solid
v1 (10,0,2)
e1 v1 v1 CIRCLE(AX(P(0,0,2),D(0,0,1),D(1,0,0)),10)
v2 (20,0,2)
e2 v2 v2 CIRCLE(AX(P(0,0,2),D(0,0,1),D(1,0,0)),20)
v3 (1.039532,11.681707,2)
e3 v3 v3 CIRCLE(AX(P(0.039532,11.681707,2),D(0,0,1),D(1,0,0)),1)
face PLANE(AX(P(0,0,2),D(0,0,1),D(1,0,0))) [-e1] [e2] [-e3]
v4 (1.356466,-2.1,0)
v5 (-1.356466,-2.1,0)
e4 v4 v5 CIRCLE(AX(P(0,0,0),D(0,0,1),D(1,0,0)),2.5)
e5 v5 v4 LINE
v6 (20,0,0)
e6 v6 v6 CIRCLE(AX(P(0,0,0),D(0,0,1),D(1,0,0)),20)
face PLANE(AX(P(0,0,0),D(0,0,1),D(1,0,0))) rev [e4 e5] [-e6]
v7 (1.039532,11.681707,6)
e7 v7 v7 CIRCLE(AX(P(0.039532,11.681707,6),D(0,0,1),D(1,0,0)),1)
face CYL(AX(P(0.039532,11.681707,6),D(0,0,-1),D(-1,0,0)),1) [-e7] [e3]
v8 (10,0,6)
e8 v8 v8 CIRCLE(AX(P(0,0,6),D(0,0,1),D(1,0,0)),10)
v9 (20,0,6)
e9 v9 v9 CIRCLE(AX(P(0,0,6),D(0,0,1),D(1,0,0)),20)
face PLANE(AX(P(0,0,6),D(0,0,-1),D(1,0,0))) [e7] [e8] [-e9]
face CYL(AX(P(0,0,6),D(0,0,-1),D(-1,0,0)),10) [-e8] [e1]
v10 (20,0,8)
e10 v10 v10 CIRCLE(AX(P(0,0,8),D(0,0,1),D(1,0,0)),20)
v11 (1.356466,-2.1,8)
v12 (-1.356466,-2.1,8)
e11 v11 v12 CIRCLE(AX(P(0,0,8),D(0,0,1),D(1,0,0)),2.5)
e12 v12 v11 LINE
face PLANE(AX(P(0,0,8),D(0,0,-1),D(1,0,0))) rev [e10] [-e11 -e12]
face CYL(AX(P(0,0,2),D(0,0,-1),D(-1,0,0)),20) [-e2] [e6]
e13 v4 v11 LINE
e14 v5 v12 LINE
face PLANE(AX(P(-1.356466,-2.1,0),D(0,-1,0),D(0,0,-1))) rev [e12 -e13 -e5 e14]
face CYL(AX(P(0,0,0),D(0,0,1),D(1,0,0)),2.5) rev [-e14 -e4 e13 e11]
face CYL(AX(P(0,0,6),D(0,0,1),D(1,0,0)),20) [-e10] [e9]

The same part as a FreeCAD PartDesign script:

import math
import FreeCAD as App
import Part
import Sketcher
from FreeCAD import Vector

doc = App.newDocument("Part")
body = doc.addObject("PartDesign::Body", "Body")

sketch1 = doc.addObject("Sketcher::SketchObject", "Sketch")
body.addObject(sketch1)
sketch1.AttachmentSupport = (doc.XY_Plane, [""])
sketch1.MapMode = "FlatFace"
sketch1.addGeometry(Part.Circle(Vector(0, 0, 0), Vector(0, 0, 1), 20), False)
sketch1.addConstraint([
    Sketcher.Constraint("Coincident", 0, 3, -1, 1),
    Sketcher.Constraint("Diameter", 0, 40.0),
])
pad1 = doc.addObject("PartDesign::Pad", "Pad")
body.addObject(pad1)
pad1.Profile = sketch1
pad1.Length = 2

sketch2 = doc.addObject("Sketcher::SketchObject", "Sketch001")
body.addObject(sketch2)
sketch2.AttachmentSupport = (doc.XY_Plane, [""])
sketch2.MapMode = "FlatFace"
sketch2.AttachmentOffset = App.Placement(Vector(0, 0, 2), App.Rotation())
sketch2.addGeometry(Part.Circle(Vector(0, 0, 0), Vector(0, 0, 1), 10), False)
sketch2.addConstraint([
    Sketcher.Constraint("Coincident", 0, 3, -1, 1),
    Sketcher.Constraint("Diameter", 0, 20.0),
])
pad2 = doc.addObject("PartDesign::Pad", "Pad001")
body.addObject(pad2)
pad2.Profile = sketch2
pad2.Length = 4

sketch3 = doc.addObject("Sketcher::SketchObject", "Sketch002")
body.addObject(sketch3)
sketch3.AttachmentSupport = (doc.XY_Plane, [""])
sketch3.MapMode = "FlatFace"
sketch3.AttachmentOffset = App.Placement(Vector(0, 0, 2), App.Rotation())
sketch3.addGeometry(Part.Circle(Vector(0, 11.7, 0), Vector(0, 0, 1), 1), False)
sketch3.addConstraint([
    Sketcher.Constraint("Diameter", 0, 2.0),
    Sketcher.Constraint("DistanceX", -1, 1, 0, 3, 0.039532),
    Sketcher.Constraint("DistanceY", -1, 1, 0, 3, 11.681707),
])
pad3 = doc.addObject("PartDesign::Pad", "Pad002")
body.addObject(pad3)
pad3.Profile = sketch3
pad3.Length = 4
doc.recompute()

datumplane = doc.addObject("PartDesign::Plane", "DatumPlane")
body.addObject(datumplane)
datumplane.AttachmentSupport = (doc.XY_Plane, [""])
datumplane.MapMode = "FlatFace"
datumplane.AttachmentOffset = App.Placement(Vector(0, 0, 4), App.Rotation())
mirrored = doc.addObject("PartDesign::Mirrored", "Mirrored")
body.addObject(mirrored)
mirrored.Originals = [pad1]
mirrored.MirrorPlane = (datumplane, [""])
body.Tip = mirrored

sketch4 = doc.addObject("Sketcher::SketchObject", "Sketch003")
body.addObject(sketch4)
sketch4.AttachmentSupport = (doc.XY_Plane, [""])
sketch4.MapMode = "FlatFace"
sketch4.AttachmentOffset = App.Placement(Vector(0, 0, 8), App.Rotation())
sketch4.addGeometry([
    Part.LineSegment(Vector(-1.4, -2.1, 0), Vector(1.4, -2.1, 0)),
    Part.ArcOfCircle(Part.Circle(Vector(0, 0, 0), Vector(0, 0, 1), 2.5), math.radians(-57), math.radians(237)),
], False)
sketch4.addConstraint([
    Sketcher.Constraint("Coincident", 0, 1, 1, 2),
    Sketcher.Constraint("Coincident", 1, 1, 0, 2),
    Sketcher.Constraint("Horizontal", 0),
    Sketcher.Constraint("Coincident", 1, 3, -1, 1),
    Sketcher.Constraint("Radius", 1, 2.5),
    Sketcher.Constraint("DistanceY", 0, 1, -1, 1, 2.1),
])
pocket1 = doc.addObject("PartDesign::Pocket", "Pocket")
body.addObject(pocket1)
pocket1.Profile = sketch4
pocket1.Length = 8

doc.recompute()
